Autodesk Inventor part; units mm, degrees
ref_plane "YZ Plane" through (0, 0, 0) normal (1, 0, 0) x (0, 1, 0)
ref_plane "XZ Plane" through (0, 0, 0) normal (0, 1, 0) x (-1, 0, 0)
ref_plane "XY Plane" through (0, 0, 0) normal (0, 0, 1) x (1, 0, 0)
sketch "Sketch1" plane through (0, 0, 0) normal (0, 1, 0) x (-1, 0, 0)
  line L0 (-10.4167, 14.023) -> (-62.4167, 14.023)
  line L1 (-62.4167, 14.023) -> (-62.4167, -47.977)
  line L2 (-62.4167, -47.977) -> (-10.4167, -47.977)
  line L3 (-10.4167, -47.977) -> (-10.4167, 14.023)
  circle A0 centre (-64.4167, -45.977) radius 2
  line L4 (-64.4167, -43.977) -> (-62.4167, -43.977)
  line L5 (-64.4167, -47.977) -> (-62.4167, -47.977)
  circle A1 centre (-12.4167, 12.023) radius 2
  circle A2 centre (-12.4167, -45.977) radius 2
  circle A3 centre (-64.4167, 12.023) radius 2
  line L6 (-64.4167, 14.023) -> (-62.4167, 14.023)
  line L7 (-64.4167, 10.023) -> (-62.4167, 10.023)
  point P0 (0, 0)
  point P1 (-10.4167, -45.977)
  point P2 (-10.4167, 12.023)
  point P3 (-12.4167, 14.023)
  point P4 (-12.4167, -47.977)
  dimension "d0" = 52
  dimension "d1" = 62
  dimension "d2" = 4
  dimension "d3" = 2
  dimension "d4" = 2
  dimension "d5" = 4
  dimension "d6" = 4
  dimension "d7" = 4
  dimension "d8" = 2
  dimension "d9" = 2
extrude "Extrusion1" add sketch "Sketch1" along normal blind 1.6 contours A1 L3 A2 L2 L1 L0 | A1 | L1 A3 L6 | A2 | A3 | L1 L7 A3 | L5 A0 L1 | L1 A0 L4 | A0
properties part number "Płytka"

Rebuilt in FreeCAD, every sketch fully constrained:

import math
import FreeCAD as App
import Part
import Sketcher

V = App.Vector
Q = App.Units.Quantity

doc = App.newDocument("Part")
body = doc.addObject("PartDesign::Body", "Body")

# Sketch on XZ plane
sketch1 = body.newObject("Sketcher::SketchObject", "Sketch")
sketch1.AttachmentSupport = (doc.getObject("XZ_Plane"), [""])
sketch1.MapMode = "FlatFace"
sketch1.addGeometry([
    Part.LineSegment(V(10.4167, -45.977, 0), V(10.4167, 12.023, 0)),  # 0
    Part.ArcOfCircle(Part.Circle(V(12.4167, 12.023, 0), V(0, 0, 1), 2), math.radians(90), math.radians(180)),  # 1
    Part.LineSegment(V(12.4167, 14.023, 0), V(64.4167, 14.023, 0)),  # 2
    Part.ArcOfCircle(Part.Circle(V(64.4167, 12.023, 0), V(0, 0, 1), 2), math.radians(-90), math.radians(90)),  # 3
    Part.LineSegment(V(64.4167, 10.023, 0), V(62.4167, 10.023, 0)),  # 4
    Part.LineSegment(V(62.4167, 10.023, 0), V(62.4167, -43.977, 0)),  # 5
    Part.LineSegment(V(62.4167, -43.977, 0), V(64.4167, -43.977, 0)),  # 6
    Part.ArcOfCircle(Part.Circle(V(64.4167, -45.977, 0), V(0, 0, 1), 2), math.radians(-90), math.radians(90)),  # 7
    Part.LineSegment(V(64.4167, -47.977, 0), V(12.4167, -47.977, 0)),  # 8
    Part.ArcOfCircle(Part.Circle(V(12.4167, -45.977, 0), V(0, 0, 1), 2), math.radians(180), math.radians(270)),  # 9
], False)
sketch1.addConstraint([
    Sketcher.Constraint("Tangent", 0, 2, 1, 2),
    Sketcher.Constraint("Tangent", 1, 1, 2, 1),
    Sketcher.Constraint("Tangent", 2, 2, 3, 2),
    Sketcher.Constraint("Tangent", 3, 1, 4, 1),
    Sketcher.Constraint("Coincident", 4, 2, 5, 1),
    Sketcher.Constraint("Coincident", 5, 2, 6, 1),
    Sketcher.Constraint("Tangent", 6, 2, 7, 2),
    Sketcher.Constraint("Tangent", 7, 1, 8, 1),
    Sketcher.Constraint("Tangent", 8, 2, 9, 2),
    Sketcher.Constraint("Tangent", 9, 1, 0, 1),
    Sketcher.Constraint("Vertical", 0),
    Sketcher.Constraint("Horizontal", 2),
    Sketcher.Constraint("Horizontal", 4),
    Sketcher.Constraint("Vertical", 5),
    Sketcher.Constraint("Horizontal", 6),
    Sketcher.Constraint("Horizontal", 8),
    Sketcher.Constraint("Equal", 1, 3),
    Sketcher.Constraint("Equal", 3, 7),
    Sketcher.Constraint("Equal", 7, 9),
    Sketcher.Constraint("Vertical", 3, 3, 7, 3),
    Sketcher.Constraint("Radius", 1, Q("2 mm")),
    Sketcher.Constraint("DistanceX", 2, 1, 2, 2, Q("52 mm")),
    Sketcher.Constraint("DistanceX", 4, 2, 4, 1, Q("2 mm")),
    Sketcher.Constraint("DistanceY", 0, 1, 0, 2, Q("58 mm")),
    Sketcher.Constraint("DistanceY", -1, 1, 1, 3, Q("12.023 mm")),
    Sketcher.Constraint("DistanceX", -1, 1, 1, 3, Q("12.4167 mm")),
])
pad1 = body.newObject("PartDesign::Pad", "Pad")
pad1.Profile = sketch1
pad1.Length = 1.6
pad1.Reversed = True

doc.recompute()
